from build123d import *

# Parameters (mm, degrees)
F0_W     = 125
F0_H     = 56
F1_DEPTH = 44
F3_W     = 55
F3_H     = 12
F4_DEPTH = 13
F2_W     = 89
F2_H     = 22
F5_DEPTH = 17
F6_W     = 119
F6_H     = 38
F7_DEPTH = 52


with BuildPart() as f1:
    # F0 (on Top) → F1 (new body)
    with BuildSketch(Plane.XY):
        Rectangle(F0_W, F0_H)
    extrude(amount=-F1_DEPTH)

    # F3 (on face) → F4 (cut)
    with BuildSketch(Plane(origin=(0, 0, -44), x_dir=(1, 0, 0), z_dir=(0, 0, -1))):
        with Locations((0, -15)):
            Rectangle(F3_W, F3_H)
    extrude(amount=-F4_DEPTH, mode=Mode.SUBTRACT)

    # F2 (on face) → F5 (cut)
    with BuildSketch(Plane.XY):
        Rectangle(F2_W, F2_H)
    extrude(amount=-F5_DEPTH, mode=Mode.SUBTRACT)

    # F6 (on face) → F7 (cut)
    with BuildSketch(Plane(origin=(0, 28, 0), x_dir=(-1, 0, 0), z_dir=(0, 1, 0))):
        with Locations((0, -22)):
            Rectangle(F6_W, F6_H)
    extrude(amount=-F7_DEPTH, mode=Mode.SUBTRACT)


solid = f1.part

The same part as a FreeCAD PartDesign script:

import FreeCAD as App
import Part
import Sketcher


def add_polygon(sketch, points):
    """Adds a closed chain of lines whose ends are joined by coincident constraints."""
    first, n = sketch.GeometryCount, len(points)
    for a, b in zip(points, points[1:] + points[:1]):
        sketch.addGeometry(Part.LineSegment(App.Vector(*a, 0), App.Vector(*b, 0)), False)
    for i in range(n):
        sketch.addConstraint(Sketcher.Constraint("Coincident", first + i, 2, first + (i + 1) % n, 1))

doc = App.newDocument("Part")
body = doc.addObject("PartDesign::Body", "Body")

# Sketch on XY plane
sketch1 = doc.addObject("Sketcher::SketchObject", "Sketch")
body.addObject(sketch1)
sketch1.AttachmentSupport = (doc.XY_Plane, [""])
sketch1.MapMode = "FlatFace"
add_polygon(sketch1, [(-62.5, 28), (-62.5, -28), (62.5, -28), (62.5, 28)])  # lines 0-3
sketch1.addConstraint(Sketcher.Constraint("Vertical", 0))
sketch1.addConstraint(Sketcher.Constraint("Horizontal", 1))
sketch1.addConstraint(Sketcher.Constraint("Vertical", 2))
sketch1.addConstraint(Sketcher.Constraint("Horizontal", 3))
sketch1.addConstraint(Sketcher.Constraint("Symmetric", 0, 2, 2, 2, -1, 1))
sketch1.addConstraint(Sketcher.Constraint("DistanceX", 1, 1, 1, 2, 125.0))
sketch1.addConstraint(Sketcher.Constraint("DistanceY", 0, 2, 0, 1, 56.0))
pad1 = doc.addObject("PartDesign::Pad", "Pad")
body.addObject(pad1)
pad1.Profile = sketch1
pad1.Length = 44
pad1.Reversed = True

# Sketch on XY plane
sketch2 = doc.addObject("Sketcher::SketchObject", "Sketch001")
body.addObject(sketch2)
sketch2.AttachmentSupport = (doc.XY_Plane, [""])
sketch2.MapMode = "FlatFace"
sketch2.AttachmentOffset = App.Placement(App.Vector(0, 0, -44), App.Rotation())
add_polygon(sketch2, [(-27.5, 9), (-27.5, 21), (27.5, 21), (27.5, 9)])  # lines 0-3
sketch2.addConstraint(Sketcher.Constraint("Vertical", 0))
sketch2.addConstraint(Sketcher.Constraint("Horizontal", 1))
sketch2.addConstraint(Sketcher.Constraint("Vertical", 2))
sketch2.addConstraint(Sketcher.Constraint("Horizontal", 3))
sketch2.addConstraint(Sketcher.Constraint("DistanceX", 1, 1, 1, 2, 55.0))
sketch2.addConstraint(Sketcher.Constraint("DistanceY", 0, 1, 0, 2, 12.0))
sketch2.addConstraint(Sketcher.Constraint("DistanceY", -1, 1, 0, 2, 21.0))
sketch2.addConstraint(Sketcher.Constraint("DistanceX", 0, 2, -1, 1, 27.5))
pocket1 = doc.addObject("PartDesign::Pocket", "Pocket")
body.addObject(pocket1)
pocket1.Profile = sketch2
pocket1.Length = 13
pocket1.Reversed = True

# Sketch on XY plane
sketch3 = doc.addObject("Sketcher::SketchObject", "Sketch002")
body.addObject(sketch3)
sketch3.AttachmentSupport = (doc.XY_Plane, [""])
sketch3.MapMode = "FlatFace"
add_polygon(sketch3, [(-44.5, 11), (-44.5, -11), (44.5, -11), (44.5, 11)])  # lines 0-3
sketch3.addConstraint(Sketcher.Constraint("Vertical", 0))
sketch3.addConstraint(Sketcher.Constraint("Horizontal", 1))
sketch3.addConstraint(Sketcher.Constraint("Vertical", 2))
sketch3.addConstraint(Sketcher.Constraint("Horizontal", 3))
sketch3.addConstraint(Sketcher.Constraint("Symmetric", 0, 2, 2, 2, -1, 1))
sketch3.addConstraint(Sketcher.Constraint("DistanceX", 1, 1, 1, 2, 89.0))
sketch3.addConstraint(Sketcher.Constraint("DistanceY", 0, 2, 0, 1, 22.0))
pocket2 = doc.addObject("PartDesign::Pocket", "Pocket001")
body.addObject(pocket2)
pocket2.Profile = sketch3
pocket2.Length = 17

# Sketch on XZ plane
sketch4 = doc.addObject("Sketcher::SketchObject", "Sketch003")
body.addObject(sketch4)
sketch4.AttachmentSupport = (doc.XZ_Plane, [""])
sketch4.MapMode = "FlatFace"
sketch4.AttachmentOffset = App.Placement(App.Vector(0, 0, -28), App.Rotation())
add_polygon(sketch4, [(59.5, -3), (59.5, -41), (-59.5, -41), (-59.5, -3)])  # lines 0-3
sketch4.addConstraint(Sketcher.Constraint("Vertical", 0))
sketch4.addConstraint(Sketcher.Constraint("Horizontal", 1))
sketch4.addConstraint(Sketcher.Constraint("Vertical", 2))
sketch4.addConstraint(Sketcher.Constraint("Horizontal", 3))
sketch4.addConstraint(Sketcher.Constraint("DistanceX", 1, 2, 1, 1, 119.0))
sketch4.addConstraint(Sketcher.Constraint("DistanceY", 0, 2, 0, 1, 38.0))
sketch4.addConstraint(Sketcher.Constraint("DistanceY", 0, 2, -1, 1, 41.0))
sketch4.addConstraint(Sketcher.Constraint("DistanceX", -1, 1, 0, 2, 59.5))
pocket3 = doc.addObject("PartDesign::Pocket", "Pocket002")
body.addObject(pocket3)
pocket3.Profile = sketch4
pocket3.Length = 52
pocket3.Reversed = True

doc.recompute()
